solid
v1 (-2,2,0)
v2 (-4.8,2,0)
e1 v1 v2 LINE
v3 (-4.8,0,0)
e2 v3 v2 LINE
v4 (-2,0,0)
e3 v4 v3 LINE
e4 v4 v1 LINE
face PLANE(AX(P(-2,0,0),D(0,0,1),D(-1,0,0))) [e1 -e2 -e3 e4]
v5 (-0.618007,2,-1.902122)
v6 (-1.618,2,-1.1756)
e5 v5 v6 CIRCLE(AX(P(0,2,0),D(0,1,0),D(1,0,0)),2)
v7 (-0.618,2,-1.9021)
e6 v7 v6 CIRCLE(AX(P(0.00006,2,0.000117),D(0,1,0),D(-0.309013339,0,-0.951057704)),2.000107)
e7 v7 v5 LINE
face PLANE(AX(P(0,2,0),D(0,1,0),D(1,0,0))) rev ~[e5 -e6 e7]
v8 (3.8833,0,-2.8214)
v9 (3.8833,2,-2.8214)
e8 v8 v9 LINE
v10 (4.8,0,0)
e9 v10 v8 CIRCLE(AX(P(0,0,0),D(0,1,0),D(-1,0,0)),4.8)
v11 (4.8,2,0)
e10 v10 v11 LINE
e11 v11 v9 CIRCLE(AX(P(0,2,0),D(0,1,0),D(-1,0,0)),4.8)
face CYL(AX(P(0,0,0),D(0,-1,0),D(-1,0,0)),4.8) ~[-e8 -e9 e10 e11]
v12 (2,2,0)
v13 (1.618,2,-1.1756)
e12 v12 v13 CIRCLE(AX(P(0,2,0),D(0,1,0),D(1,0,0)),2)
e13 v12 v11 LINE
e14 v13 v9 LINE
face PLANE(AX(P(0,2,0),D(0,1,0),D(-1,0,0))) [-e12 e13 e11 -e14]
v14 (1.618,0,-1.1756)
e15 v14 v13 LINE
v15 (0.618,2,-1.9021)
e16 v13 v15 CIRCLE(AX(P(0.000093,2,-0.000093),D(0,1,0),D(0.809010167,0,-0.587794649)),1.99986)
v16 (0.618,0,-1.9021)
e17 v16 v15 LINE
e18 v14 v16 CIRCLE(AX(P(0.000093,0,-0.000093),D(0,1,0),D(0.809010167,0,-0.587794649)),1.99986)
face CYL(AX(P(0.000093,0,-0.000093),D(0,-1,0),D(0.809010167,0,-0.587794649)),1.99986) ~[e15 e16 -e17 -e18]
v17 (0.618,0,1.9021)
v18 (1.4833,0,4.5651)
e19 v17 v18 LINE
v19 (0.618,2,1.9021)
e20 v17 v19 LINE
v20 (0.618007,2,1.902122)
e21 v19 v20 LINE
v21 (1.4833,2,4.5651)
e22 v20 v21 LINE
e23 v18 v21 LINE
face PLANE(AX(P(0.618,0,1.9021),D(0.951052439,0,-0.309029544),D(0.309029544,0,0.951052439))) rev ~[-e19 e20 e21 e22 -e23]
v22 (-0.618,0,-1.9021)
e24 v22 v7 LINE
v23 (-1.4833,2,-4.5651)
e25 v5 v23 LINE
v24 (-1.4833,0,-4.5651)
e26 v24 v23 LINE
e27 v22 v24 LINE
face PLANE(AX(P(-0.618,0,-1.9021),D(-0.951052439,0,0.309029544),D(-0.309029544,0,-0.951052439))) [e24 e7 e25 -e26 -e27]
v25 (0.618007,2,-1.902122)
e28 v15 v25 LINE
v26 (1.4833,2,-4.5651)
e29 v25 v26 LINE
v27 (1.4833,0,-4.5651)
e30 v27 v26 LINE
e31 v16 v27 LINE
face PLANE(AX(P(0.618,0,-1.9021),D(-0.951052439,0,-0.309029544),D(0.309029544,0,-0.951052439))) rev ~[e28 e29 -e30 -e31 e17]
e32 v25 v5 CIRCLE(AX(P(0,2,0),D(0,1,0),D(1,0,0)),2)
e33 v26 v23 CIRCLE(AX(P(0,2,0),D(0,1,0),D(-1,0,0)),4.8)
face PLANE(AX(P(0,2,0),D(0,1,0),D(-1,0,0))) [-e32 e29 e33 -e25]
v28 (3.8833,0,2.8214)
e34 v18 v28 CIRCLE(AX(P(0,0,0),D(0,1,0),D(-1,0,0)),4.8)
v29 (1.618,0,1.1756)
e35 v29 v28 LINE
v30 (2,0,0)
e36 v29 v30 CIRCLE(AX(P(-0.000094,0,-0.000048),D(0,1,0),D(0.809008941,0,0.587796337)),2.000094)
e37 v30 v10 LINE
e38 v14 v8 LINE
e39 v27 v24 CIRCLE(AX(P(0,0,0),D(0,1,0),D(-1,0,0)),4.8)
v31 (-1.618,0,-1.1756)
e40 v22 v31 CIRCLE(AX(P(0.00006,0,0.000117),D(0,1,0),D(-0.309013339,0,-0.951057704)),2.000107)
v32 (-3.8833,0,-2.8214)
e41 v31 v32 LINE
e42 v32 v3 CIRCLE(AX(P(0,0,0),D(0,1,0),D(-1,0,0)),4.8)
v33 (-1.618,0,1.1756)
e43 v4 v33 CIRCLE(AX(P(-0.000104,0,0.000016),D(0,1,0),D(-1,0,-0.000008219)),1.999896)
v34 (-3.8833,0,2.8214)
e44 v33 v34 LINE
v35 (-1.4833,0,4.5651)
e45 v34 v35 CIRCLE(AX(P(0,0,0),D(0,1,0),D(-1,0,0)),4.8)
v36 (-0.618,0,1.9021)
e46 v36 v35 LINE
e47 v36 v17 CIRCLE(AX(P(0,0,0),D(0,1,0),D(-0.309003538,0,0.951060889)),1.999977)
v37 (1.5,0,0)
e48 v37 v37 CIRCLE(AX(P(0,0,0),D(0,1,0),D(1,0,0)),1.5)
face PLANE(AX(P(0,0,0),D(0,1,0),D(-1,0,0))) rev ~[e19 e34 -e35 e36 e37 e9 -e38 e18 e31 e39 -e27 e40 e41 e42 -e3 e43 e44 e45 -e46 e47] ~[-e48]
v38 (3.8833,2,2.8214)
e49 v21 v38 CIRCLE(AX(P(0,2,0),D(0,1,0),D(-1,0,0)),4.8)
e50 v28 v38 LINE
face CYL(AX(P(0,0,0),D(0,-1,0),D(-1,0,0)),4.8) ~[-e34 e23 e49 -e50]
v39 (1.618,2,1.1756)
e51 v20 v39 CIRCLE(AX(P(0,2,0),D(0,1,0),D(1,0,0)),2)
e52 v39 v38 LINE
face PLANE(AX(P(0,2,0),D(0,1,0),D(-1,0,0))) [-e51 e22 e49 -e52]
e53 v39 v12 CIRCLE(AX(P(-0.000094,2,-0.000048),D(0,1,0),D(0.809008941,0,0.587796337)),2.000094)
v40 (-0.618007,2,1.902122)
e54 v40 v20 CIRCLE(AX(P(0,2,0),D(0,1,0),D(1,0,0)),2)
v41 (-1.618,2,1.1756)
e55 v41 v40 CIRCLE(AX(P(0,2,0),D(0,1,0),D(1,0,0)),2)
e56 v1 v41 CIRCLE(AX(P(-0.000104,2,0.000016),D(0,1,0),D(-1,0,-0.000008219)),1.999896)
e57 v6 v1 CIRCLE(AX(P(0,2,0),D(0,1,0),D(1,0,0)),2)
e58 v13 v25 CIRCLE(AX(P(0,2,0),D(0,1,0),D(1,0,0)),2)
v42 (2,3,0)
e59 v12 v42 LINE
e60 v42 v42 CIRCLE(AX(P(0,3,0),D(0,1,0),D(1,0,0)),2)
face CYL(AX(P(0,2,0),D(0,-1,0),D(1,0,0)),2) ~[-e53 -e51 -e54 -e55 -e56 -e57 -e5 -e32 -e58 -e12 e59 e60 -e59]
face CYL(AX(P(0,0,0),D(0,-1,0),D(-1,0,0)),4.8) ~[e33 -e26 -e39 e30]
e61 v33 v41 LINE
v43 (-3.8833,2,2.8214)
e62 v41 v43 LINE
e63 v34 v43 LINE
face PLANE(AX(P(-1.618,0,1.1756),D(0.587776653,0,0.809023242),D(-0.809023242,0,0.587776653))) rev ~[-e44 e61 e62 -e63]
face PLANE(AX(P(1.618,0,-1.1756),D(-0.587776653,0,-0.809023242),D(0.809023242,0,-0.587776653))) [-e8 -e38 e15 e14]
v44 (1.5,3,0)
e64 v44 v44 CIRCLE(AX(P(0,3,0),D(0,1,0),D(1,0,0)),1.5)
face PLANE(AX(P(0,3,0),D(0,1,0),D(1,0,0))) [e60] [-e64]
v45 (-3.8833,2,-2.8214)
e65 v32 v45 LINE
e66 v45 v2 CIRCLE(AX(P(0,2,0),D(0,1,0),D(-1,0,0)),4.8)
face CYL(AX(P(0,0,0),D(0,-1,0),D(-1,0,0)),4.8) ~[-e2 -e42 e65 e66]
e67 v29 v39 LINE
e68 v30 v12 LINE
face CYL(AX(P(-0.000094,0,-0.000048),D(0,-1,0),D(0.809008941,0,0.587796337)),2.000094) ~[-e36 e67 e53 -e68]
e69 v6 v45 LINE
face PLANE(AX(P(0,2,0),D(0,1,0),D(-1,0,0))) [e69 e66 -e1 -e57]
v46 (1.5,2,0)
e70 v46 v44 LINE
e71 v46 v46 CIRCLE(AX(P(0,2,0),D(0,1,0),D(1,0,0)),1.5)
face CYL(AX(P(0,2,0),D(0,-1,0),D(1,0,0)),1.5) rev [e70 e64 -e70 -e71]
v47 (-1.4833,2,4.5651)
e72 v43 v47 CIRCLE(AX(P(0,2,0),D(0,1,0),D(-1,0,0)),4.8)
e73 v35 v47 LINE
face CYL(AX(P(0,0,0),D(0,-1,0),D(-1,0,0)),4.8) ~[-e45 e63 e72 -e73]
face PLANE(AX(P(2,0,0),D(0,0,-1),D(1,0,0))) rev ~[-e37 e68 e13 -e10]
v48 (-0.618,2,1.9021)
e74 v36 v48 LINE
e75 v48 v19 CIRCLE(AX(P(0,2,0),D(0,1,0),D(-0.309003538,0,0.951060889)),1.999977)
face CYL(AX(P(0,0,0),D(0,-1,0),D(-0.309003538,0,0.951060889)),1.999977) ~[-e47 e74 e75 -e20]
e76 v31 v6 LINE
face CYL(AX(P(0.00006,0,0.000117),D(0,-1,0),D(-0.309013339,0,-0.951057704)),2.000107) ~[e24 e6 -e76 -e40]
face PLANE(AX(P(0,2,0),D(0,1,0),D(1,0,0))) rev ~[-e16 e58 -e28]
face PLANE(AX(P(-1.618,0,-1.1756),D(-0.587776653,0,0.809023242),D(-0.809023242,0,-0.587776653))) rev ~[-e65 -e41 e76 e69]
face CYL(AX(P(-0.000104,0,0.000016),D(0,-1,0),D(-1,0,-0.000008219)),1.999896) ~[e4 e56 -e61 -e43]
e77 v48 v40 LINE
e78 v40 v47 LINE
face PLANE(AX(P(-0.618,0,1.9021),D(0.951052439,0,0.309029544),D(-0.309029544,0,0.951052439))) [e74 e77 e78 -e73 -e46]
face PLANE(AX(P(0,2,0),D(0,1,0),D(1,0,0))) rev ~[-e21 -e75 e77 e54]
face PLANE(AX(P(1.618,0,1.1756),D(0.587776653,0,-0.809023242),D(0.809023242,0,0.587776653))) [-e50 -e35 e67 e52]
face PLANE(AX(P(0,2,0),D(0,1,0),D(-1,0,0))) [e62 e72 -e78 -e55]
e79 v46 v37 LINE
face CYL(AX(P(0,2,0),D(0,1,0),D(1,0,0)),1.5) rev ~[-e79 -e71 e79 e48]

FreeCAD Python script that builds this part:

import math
import FreeCAD as App
import Part
import Sketcher

V = App.Vector
Q = App.Units.Quantity

doc = App.newDocument("Part")
body = doc.addObject("PartDesign::Body", "Body")

sketch1 = body.newObject("Sketcher::SketchObject", "Sketch")
sketch1.AttachmentSupport = (doc.getObject("XZ_Plane"), [""])
sketch1.MapMode = "FlatFace"
sketch1.addGeometry([
    Part.ArcOfCircle(Part.Circle(V(0, 0, 0), V(0, 0, 1), 4.8), math.radians(180), math.radians(216)),
    Part.LineSegment(V(-4.8, 0, 0), V(-2, 0, 0)),
    Part.ArcOfCircle(Part.Circle(V(0, 0, 0), V(0, 0, 1), 2), math.radians(144), math.radians(180)),
    Part.LineSegment(V(-1.6, 1.2, 0), V(-3.9, 2.8, 0)),
    Part.ArcOfCircle(Part.Circle(V(0, 0, 0), V(0, 0, 1), 4.8), math.radians(108), math.radians(144)),
    Part.LineSegment(V(-1.5, 4.6, 0), V(-0.6, 1.9, 0)),
    Part.ArcOfCircle(Part.Circle(V(0, 0, 0), V(0, 0, 1), 2), math.radians(72), math.radians(108)),
    Part.LineSegment(V(0.6, 1.9, 0), V(1.5, 4.6, 0)),
    Part.ArcOfCircle(Part.Circle(V(0, 0, 0), V(0, 0, 1), 4.8), math.radians(36), math.radians(72)),
    Part.LineSegment(V(3.9, 2.8, 0), V(1.6, 1.2, 0)),
    Part.ArcOfCircle(Part.Circle(V(0, 0, 0), V(0, 0, 1), 2), math.radians(0), math.radians(36)),
    Part.LineSegment(V(2, 0, 0), V(4.8, 0, 0)),
    Part.ArcOfCircle(Part.Circle(V(0, 0, 0), V(0, 0, 1), 4.8), math.radians(-36), math.radians(0)),
    Part.LineSegment(V(3.9, -2.8, 0), V(1.6, -1.2, 0)),
    Part.ArcOfCircle(Part.Circle(V(0, 0, 0), V(0, 0, 1), 2), math.radians(-72), math.radians(-36)),
    Part.LineSegment(V(0.6, -1.9, 0), V(1.5, -4.6, 0)),
    Part.ArcOfCircle(Part.Circle(V(0, 0, 0), V(0, 0, 1), 4.8), math.radians(-108), math.radians(-72)),
    Part.LineSegment(V(-1.5, -4.6, 0), V(-0.6, -1.9, 0)),
    Part.ArcOfCircle(Part.Circle(V(0, 0, 0), V(0, 0, 1), 2), math.radians(-144), math.radians(-108)),
    Part.LineSegment(V(-1.6, -1.2, 0), V(-3.9, -2.8, 0)),
], False)
sketch1.addConstraint([
    Sketcher.Constraint("Coincident", 0, 1, 1, 1),
    Sketcher.Constraint("Coincident", 1, 2, 2, 2),
    Sketcher.Constraint("Coincident", 2, 1, 3, 1),
    Sketcher.Constraint("Coincident", 3, 2, 4, 2),
    Sketcher.Constraint("Coincident", 4, 1, 5, 1),
    Sketcher.Constraint("Coincident", 5, 2, 6, 2),
    Sketcher.Constraint("Coincident", 6, 1, 7, 1),
    Sketcher.Constraint("Coincident", 7, 2, 8, 2),
    Sketcher.Constraint("Coincident", 8, 1, 9, 1),
    Sketcher.Constraint("Coincident", 9, 2, 10, 2),
    Sketcher.Constraint("Coincident", 10, 1, 11, 1),
    Sketcher.Constraint("Coincident", 11, 2, 12, 2),
    Sketcher.Constraint("Coincident", 12, 1, 13, 1),
    Sketcher.Constraint("Coincident", 13, 2, 14, 2),
    Sketcher.Constraint("Coincident", 14, 1, 15, 1),
    Sketcher.Constraint("Coincident", 15, 2, 16, 2),
    Sketcher.Constraint("Coincident", 16, 1, 17, 1),
    Sketcher.Constraint("Coincident", 17, 2, 18, 2),
    Sketcher.Constraint("Coincident", 18, 1, 19, 1),
    Sketcher.Constraint("Coincident", 19, 2, 0, 2),
    Sketcher.Constraint("Horizontal", 1),
    Sketcher.Constraint("Horizontal", 11),
    Sketcher.Constraint("Coincident", 0, 3, -1, 1),
    Sketcher.Constraint("Coincident", 2, 3, -1, 1),
    Sketcher.Constraint("Coincident", 4, 3, -1, 1),
    Sketcher.Constraint("Coincident", 6, 3, -1, 1),
    Sketcher.Constraint("Coincident", 8, 3, -1, 1),
    Sketcher.Constraint("Coincident", 10, 3, -1, 1),
    Sketcher.Constraint("Coincident", 12, 3, -1, 1),
    Sketcher.Constraint("Coincident", 14, 3, -1, 1),
    Sketcher.Constraint("Coincident", 16, 3, -1, 1),
    Sketcher.Constraint("Coincident", 18, 3, -1, 1),
    Sketcher.Constraint("Equal", 0, 4),
    Sketcher.Constraint("Equal", 2, 6),
    Sketcher.Constraint("Equal", 4, 8),
    Sketcher.Constraint("Equal", 6, 10),
    Sketcher.Constraint("Equal", 8, 12),
    Sketcher.Constraint("Equal", 10, 14),
    Sketcher.Constraint("Equal", 12, 16),
    Sketcher.Constraint("Equal", 14, 18),
    Sketcher.Constraint("PointOnObject", 0, 1, -1),
    Sketcher.Constraint("PointOnObject", 10, 1, -1),
    Sketcher.Constraint("Parallel", 3, 13),
    Sketcher.Constraint("Parallel", 5, 15),
    Sketcher.Constraint("Parallel", 7, 17),
    Sketcher.Constraint("Parallel", 9, 19),
    Sketcher.Constraint("Horizontal", 5, 2, 6, 1),
    Sketcher.Constraint("Horizontal", 4, 1, 7, 2),
    Sketcher.Constraint("Horizontal", 3, 2, 8, 1),
    Sketcher.Constraint("Horizontal", 2, 1, 9, 2),
    Sketcher.Constraint("Horizontal", 15, 2, 16, 1),
    Sketcher.Constraint("Horizontal", 13, 2, 18, 1),
    Sketcher.Constraint("Vertical", 8, 1, 12, 1),
    Sketcher.Constraint("Vertical", 6, 1, 14, 1),
    Sketcher.Constraint("Radius", 0, 4.8),
    Sketcher.Constraint("Radius", 2, 2.0),
    Sketcher.Constraint("Angle", 3, Q("144.0006 deg")),
    Sketcher.Constraint("Angle", 5, Q("-71.9992 deg")),
    Sketcher.Constraint("DistanceX", 2, 1, 5, 2, 1.0),
    Sketcher.Constraint("DistanceX", 2, 1, -1, 1, 1.618),
])
pad1 = body.newObject("PartDesign::Pad", "Pad")
pad1.Profile = sketch1
pad1.Length = 2
pad1.Reversed = True

sketch2 = body.newObject("Sketcher::SketchObject", "Sketch001")
sketch2.AttachmentSupport = (doc.getObject("XZ_Plane"), [""])
sketch2.MapMode = "FlatFace"
sketch2.AttachmentOffset = App.Placement(V(0, 0, -2), App.Rotation())
sketch2.addGeometry(Part.Circle(V(0, 0, 0), V(0, 0, 1), 2), False)
sketch2.addConstraint([
    Sketcher.Constraint("Coincident", 0, 3, -1, 1),
    Sketcher.Constraint("Diameter", 0, 4.0),
])
pad2 = body.newObject("PartDesign::Pad", "Pad001")
pad2.Profile = sketch2
pad2.Length = 1
pad2.Reversed = True

sketch3 = body.newObject("Sketcher::SketchObject", "Sketch002")
sketch3.AttachmentSupport = (doc.getObject("XZ_Plane"), [""])
sketch3.MapMode = "FlatFace"
sketch3.AttachmentOffset = App.Placement(V(0, 0, -2), App.Rotation())
sketch3.addGeometry(Part.Circle(V(0, 0, 0), V(0, 0, 1), 1.5), False)
sketch3.addConstraint([
    Sketcher.Constraint("Coincident", 0, 3, -1, 1),
    Sketcher.Constraint("Diameter", 0, 3.0),
])
pocket1 = body.newObject("PartDesign::Pocket", "Pocket")
pocket1.Profile = sketch3
pocket1.Type = "ThroughAll"
pocket1.Midplane = True

doc.recompute()
